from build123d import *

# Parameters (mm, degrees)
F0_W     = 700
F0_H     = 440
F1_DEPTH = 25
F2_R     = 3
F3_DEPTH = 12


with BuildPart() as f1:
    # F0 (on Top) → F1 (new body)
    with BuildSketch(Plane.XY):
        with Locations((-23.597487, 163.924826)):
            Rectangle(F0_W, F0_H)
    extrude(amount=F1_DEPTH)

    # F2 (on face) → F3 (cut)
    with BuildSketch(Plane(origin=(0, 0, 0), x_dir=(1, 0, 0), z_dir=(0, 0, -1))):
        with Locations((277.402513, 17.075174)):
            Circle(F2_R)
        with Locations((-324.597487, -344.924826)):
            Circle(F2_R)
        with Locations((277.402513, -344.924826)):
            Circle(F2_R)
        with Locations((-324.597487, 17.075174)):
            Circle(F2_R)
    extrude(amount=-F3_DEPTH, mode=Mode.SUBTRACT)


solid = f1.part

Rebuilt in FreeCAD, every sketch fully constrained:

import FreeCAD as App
import Part
import Sketcher
Q = App.Units.Quantity

doc = App.newDocument("Part")
body = doc.addObject("PartDesign::Body", "Body")

sketch1 = body.newObject("Sketcher::SketchObject", "Sketch")
sketch1.AttachmentSupport = (doc.getObject("XY_Plane"), [""])
sketch1.MapMode = "FlatFace"
sketch1.addGeometry([
    Part.LineSegment(App.Vector(-374, 384, 0), App.Vector(-374, -56, 0)),
    Part.LineSegment(App.Vector(-374, -56, 0), App.Vector(326, -56, 0)),
    Part.LineSegment(App.Vector(326, -56, 0), App.Vector(326, 384, 0)),
    Part.LineSegment(App.Vector(326, 384, 0), App.Vector(-374, 384, 0)),
], False)
sketch1.addConstraint([
    Sketcher.Constraint("Coincident", 0, 2, 1, 1),
    Sketcher.Constraint("Coincident", 1, 2, 2, 1),
    Sketcher.Constraint("Coincident", 2, 2, 3, 1),
    Sketcher.Constraint("Coincident", 3, 2, 0, 1),
    Sketcher.Constraint("Vertical", 0),
    Sketcher.Constraint("Horizontal", 1),
    Sketcher.Constraint("Vertical", 2),
    Sketcher.Constraint("Horizontal", 3),
    Sketcher.Constraint("DistanceX", 1, 1, 1, 2, Q("700 mm")),
    Sketcher.Constraint("DistanceY", 0, 2, 0, 1, Q("440 mm")),
    Sketcher.Constraint("DistanceX", 0, 2, -1, 1, Q("373.597487 mm")),
    Sketcher.Constraint("DistanceY", 0, 2, -1, 1, Q("56.075174 mm")),
])
pad1 = body.newObject("PartDesign::Pad", "Pad")
pad1.Profile = sketch1
pad1.Length = 25

sketch2 = body.newObject("Sketcher::SketchObject", "Sketch001")
sketch2.AttachmentSupport = (doc.getObject("XY_Plane"), [""])
sketch2.MapMode = "FlatFace"
sketch2.addGeometry([
    Part.Circle(App.Vector(277.4, -17.1, 0), App.Vector(0, 0, 1), 3),
    Part.Circle(App.Vector(-324.6, 344.9, 0), App.Vector(0, 0, 1), 3),
    Part.Circle(App.Vector(277.4, 344.9, 0), App.Vector(0, 0, 1), 3),
    Part.Circle(App.Vector(-324.6, -17.1, 0), App.Vector(0, 0, 1), 3),
], False)
sketch2.addConstraint([
    Sketcher.Constraint("Equal", 0, 1),
    Sketcher.Constraint("Equal", 1, 2),
    Sketcher.Constraint("Equal", 2, 3),
    Sketcher.Constraint("Horizontal", 1, 3, 2, 3),
    Sketcher.Constraint("Horizontal", 0, 3, 3, 3),
    Sketcher.Constraint("Vertical", 0, 3, 2, 3),
    Sketcher.Constraint("Vertical", 1, 3, 3, 3),
    Sketcher.Constraint("Diameter", 0, Q("6 mm")),
    Sketcher.Constraint("DistanceX", 1, 3, 0, 3, Q("602 mm")),
    Sketcher.Constraint("DistanceY", 0, 3, 1, 3, Q("362 mm")),
    Sketcher.Constraint("DistanceX", -1, 1, 0, 3, Q("277.402513 mm")),
    Sketcher.Constraint("DistanceY", 0, 3, -1, 1, Q("17.075174 mm")),
])
pocket1 = body.newObject("PartDesign::Pocket", "Pocket")
pocket1.Profile = sketch2
pocket1.Length = 12
pocket1.Reversed = True

doc.recompute()
